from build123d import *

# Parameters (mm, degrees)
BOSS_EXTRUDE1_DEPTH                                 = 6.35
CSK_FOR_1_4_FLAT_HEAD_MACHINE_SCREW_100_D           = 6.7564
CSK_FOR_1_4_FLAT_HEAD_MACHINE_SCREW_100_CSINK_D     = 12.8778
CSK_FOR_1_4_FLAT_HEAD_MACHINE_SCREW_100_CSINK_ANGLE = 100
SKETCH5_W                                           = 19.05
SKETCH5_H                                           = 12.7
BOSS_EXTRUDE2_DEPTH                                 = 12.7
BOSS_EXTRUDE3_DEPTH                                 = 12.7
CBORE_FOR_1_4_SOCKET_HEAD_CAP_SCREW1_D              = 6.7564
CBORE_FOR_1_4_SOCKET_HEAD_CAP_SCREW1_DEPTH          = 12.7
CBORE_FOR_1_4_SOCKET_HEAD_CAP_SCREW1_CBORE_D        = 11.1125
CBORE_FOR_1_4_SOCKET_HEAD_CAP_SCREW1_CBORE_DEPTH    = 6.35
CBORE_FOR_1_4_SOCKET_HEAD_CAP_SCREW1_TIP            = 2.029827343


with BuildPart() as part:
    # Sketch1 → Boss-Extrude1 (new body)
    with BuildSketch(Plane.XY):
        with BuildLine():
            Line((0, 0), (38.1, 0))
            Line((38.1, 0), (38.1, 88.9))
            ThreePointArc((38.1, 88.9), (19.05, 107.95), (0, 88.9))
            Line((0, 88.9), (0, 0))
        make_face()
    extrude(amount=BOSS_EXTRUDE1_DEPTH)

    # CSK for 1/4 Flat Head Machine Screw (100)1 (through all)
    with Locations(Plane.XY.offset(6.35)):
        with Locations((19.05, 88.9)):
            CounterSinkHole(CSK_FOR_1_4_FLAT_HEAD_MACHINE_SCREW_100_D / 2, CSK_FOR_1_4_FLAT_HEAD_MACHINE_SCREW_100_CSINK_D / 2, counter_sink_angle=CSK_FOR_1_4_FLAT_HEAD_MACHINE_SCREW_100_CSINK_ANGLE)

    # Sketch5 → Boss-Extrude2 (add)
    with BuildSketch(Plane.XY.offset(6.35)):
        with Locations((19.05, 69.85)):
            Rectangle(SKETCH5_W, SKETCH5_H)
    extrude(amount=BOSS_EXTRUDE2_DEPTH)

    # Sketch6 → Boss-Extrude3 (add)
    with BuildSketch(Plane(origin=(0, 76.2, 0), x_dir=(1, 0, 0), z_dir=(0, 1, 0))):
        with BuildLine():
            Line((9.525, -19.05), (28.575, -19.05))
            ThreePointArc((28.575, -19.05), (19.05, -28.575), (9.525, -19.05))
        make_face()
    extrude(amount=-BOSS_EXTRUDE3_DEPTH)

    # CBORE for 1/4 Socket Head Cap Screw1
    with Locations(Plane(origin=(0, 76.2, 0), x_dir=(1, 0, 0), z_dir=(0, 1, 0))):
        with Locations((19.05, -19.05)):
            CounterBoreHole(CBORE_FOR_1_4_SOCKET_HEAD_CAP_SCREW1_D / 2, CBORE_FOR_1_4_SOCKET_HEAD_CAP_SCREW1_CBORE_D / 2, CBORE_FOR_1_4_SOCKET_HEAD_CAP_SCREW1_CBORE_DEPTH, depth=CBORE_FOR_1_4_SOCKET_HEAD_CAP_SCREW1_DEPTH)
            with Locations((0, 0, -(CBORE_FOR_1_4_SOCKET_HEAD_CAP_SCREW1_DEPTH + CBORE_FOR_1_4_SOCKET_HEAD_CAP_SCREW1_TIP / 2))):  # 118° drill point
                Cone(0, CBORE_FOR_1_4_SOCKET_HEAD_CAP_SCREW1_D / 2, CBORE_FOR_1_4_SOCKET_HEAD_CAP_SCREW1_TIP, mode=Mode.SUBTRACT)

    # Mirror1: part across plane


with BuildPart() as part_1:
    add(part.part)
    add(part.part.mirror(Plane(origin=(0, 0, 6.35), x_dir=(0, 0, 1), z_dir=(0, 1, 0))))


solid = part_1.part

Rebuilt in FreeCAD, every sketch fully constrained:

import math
import FreeCAD as App
import Part
import Sketcher
from FreeCAD import Vector
Q = App.Units.Quantity


def add_polygon(sketch, points):
    """Adds a closed chain of lines whose ends are joined by coincident constraints."""
    first, n = sketch.GeometryCount, len(points)
    for a, b in zip(points, points[1:] + points[:1]):
        sketch.addGeometry(Part.LineSegment(App.Vector(*a, 0), App.Vector(*b, 0)), False)
    for i in range(n):
        sketch.addConstraint(Sketcher.Constraint("Coincident", first + i, 2, first + (i + 1) % n, 1))

doc = App.newDocument("Part")
params = doc.addObject("Spreadsheet::Sheet", "Params")
for row, (alias, value) in enumerate([
    ("sketch1_radius", "0.75 in"),
    ("sketch1_height", "3.5 in"),
    ("pad1_length", "0.25 in"),
    ("sketch2_diameter", "0.266 in"),
    ("hole_diameter", "0.266 in"),
    ("hole_csink_diameter", "0.507 in"),
    ("sketch3_height", "0.5 in"),
    ("sketch3_width", "0.75 in"),
    ("pad2_length", "0.5 in"),
    ("sketch4_radius", "0.375 in"),
    ("pad3_length", "0.5 in"),
    ("sketch5_diameter", "0.266 in"),
    ("hole2_diameter", "0.266 in"),
    ("hole2_depth", "0.5 in"),
    ("hole2_cbore_diameter", "0.4375 in"),
    ("hole2_cbore_depth", "0.25 in"),
], start=1):
    params.set(f"A{row}", alias)
    params.set(f"B{row}", "=" + value)
    params.setAlias(f"B{row}", alias)

body = doc.addObject("PartDesign::Body", "Body")

sketch1 = body.newObject("Sketcher::SketchObject", "Sketch")
sketch1.AttachmentSupport = (doc.getObject("XY_Plane"), [""])
sketch1.MapMode = "FlatFace"
sketch1.addGeometry(Part.LineSegment(Vector(0, 0, 0), Vector(38, 0, 0)), False)
sketch1.addGeometry(Part.LineSegment(Vector(38, 0, 0), Vector(38, 89, 0)), False)
sketch1.addGeometry(Part.ArcOfCircle(Part.Circle(Vector(19, 89, 0), Vector(0, 0, 1), 19), math.radians(0), math.radians(180)), False)
sketch1.addGeometry(Part.LineSegment(Vector(0, 89, 0), Vector(0, 0, 0)), False)
sketch1.addConstraint(Sketcher.Constraint("Coincident", 0, 2, 1, 1))
sketch1.addConstraint(Sketcher.Constraint("Tangent", 1, 2, 2, 1))
sketch1.addConstraint(Sketcher.Constraint("Tangent", 2, 2, 3, 1))
sketch1.addConstraint(Sketcher.Constraint("Coincident", 3, 2, 0, 1))
sketch1.addConstraint(Sketcher.Constraint("Horizontal", 0))
sketch1.addConstraint(Sketcher.Constraint("Vertical", 1))
sketch1.addConstraint(Sketcher.Constraint("Vertical", 3))
sketch1.addConstraint(Sketcher.Constraint("Coincident", 3, 2, -1, 1))
sketch1.addConstraint(Sketcher.Constraint("Radius", 2, Q("0.75 in")))
sketch1.addConstraint(Sketcher.Constraint("DistanceY", 1, 1, 1, 2, Q("3.5 in")))
sketch1.setExpression("Constraints[8]", "Params.sketch1_radius")
sketch1.setExpression("Constraints[9]", "Params.sketch1_height")
pad1 = body.newObject("PartDesign::Pad", "Pad")
pad1.Profile = sketch1
pad1.setExpression("Length", "Params.pad1_length")

sketch2 = body.newObject("Sketcher::SketchObject", "Sketch001")
sketch2.AttachmentSupport = (doc.getObject("XY_Plane"), [""])
sketch2.MapMode = "FlatFace"
sketch2.AttachmentOffset = App.Placement(Vector(0, 0, 0.25 * 25.4), App.Rotation())
sketch2.addGeometry(Part.Circle(Vector(19.1, 88.9, 0), Vector(0, 0, 1), 3.4), False)
sketch2.addConstraint(Sketcher.Constraint("Diameter", 0, Q("0.266 in")))
sketch2.addConstraint(Sketcher.Constraint("DistanceY", -1, 1, 0, 3, Q("3.5 in")))
sketch2.addConstraint(Sketcher.Constraint("DistanceX", -1, 1, 0, 3, Q("0.75 in")))
sketch2.setExpression("Constraints[0]", "Params.sketch2_diameter")
doc.recompute()
hole = body.newObject("PartDesign::Hole", "Hole")
hole.Profile = sketch2
hole.ThreadType = "None"
hole.setExpression("Diameter", "Params.hole_diameter")
hole.DepthType = "ThroughAll"
hole.HoleCutType = "Countersink"
hole.setExpression("HoleCutDiameter", "Params.hole_csink_diameter")
hole.HoleCutCountersinkAngle = 100

sketch3 = body.newObject("Sketcher::SketchObject", "Sketch002")
sketch3.AttachmentSupport = (doc.getObject("XY_Plane"), [""])
sketch3.MapMode = "FlatFace"
sketch3.AttachmentOffset = App.Placement(Vector(0, 0, 0.25 * 25.4), App.Rotation())
add_polygon(sketch3, [(10, 76), (10, 64), (29, 64), (29, 76)])
sketch3.addConstraint(Sketcher.Constraint("Vertical", 0))
sketch3.addConstraint(Sketcher.Constraint("Horizontal", 1))
sketch3.addConstraint(Sketcher.Constraint("Vertical", 2))
sketch3.addConstraint(Sketcher.Constraint("Horizontal", 3))
sketch3.addConstraint(Sketcher.Constraint("DistanceY", 0, 2, 0, 1, Q("0.5 in")))
sketch3.addConstraint(Sketcher.Constraint("DistanceY", -1, 1, 2, 2, Q("3 in")))
sketch3.addConstraint(Sketcher.Constraint("DistanceX", 1, 1, 1, 2, Q("0.75 in")))
sketch3.addConstraint(Sketcher.Constraint("DistanceX", -1, 1, 0, 2, Q("0.375 in")))
sketch3.setExpression("Constraints[8]", "Params.sketch3_height")
sketch3.setExpression("Constraints[10]", "Params.sketch3_width")
pad2 = body.newObject("PartDesign::Pad", "Pad001")
pad2.Profile = sketch3
pad2.setExpression("Length", "Params.pad2_length")

sketch4 = body.newObject("Sketcher::SketchObject", "Sketch003")
sketch4.AttachmentSupport = (doc.getObject("XZ_Plane"), [""])
sketch4.MapMode = "FlatFace"
sketch4.AttachmentOffset = App.Placement(Vector(0, 0, -3 * 25.4), App.Rotation())
sketch4.addGeometry(Part.LineSegment(Vector(29, 19, 0), Vector(10, 19, 0)), False)
sketch4.addGeometry(Part.ArcOfCircle(Part.Circle(Vector(19, 19, 0), Vector(0, 0, 1), 10), math.radians(0), math.radians(180)), False)
sketch4.addConstraint(Sketcher.Constraint("Coincident", 0, 1, 1, 1))
sketch4.addConstraint(Sketcher.Constraint("Coincident", 1, 2, 0, 2))
sketch4.addConstraint(Sketcher.Constraint("Horizontal", 0))
sketch4.addConstraint(Sketcher.Constraint("Horizontal", 1, 3, 0, 1))
sketch4.addConstraint(Sketcher.Constraint("Radius", 1, Q("0.375 in")))
sketch4.addConstraint(Sketcher.Constraint("DistanceX", -1, 1, 1, 3, Q("0.75 in")))
sketch4.addConstraint(Sketcher.Constraint("DistanceY", -1, 1, 1, 3, Q("0.75 in")))
sketch4.setExpression("Constraints[4]", "Params.sketch4_radius")
pad3 = body.newObject("PartDesign::Pad", "Pad002")
pad3.Profile = sketch4
pad3.setExpression("Length", "Params.pad3_length")

sketch5 = body.newObject("Sketcher::SketchObject", "Sketch004")
sketch5.AttachmentSupport = (doc.getObject("XZ_Plane"), [""])
sketch5.MapMode = "FlatFace"
sketch5.AttachmentOffset = App.Placement(Vector(0, 0, -3 * 25.4), App.Rotation())
sketch5.addGeometry(Part.Circle(Vector(19.1, 19.1, 0), Vector(0, 0, 1), 3.4), False)
sketch5.addConstraint(Sketcher.Constraint("Diameter", 0, Q("0.266 in")))
sketch5.addConstraint(Sketcher.Constraint("DistanceX", -1, 1, 0, 3, Q("0.75 in")))
sketch5.addConstraint(Sketcher.Constraint("DistanceY", -1, 1, 0, 3, Q("0.75 in")))
sketch5.setExpression("Constraints[0]", "Params.sketch5_diameter")
doc.recompute()
hole2 = body.newObject("PartDesign::Hole", "Hole001")
hole2.Profile = sketch5
hole2.ThreadType = "None"
hole2.setExpression("Diameter", "Params.hole2_diameter")
hole2.DepthType = "Dimension"
hole2.setExpression("Depth", "Params.hole2_depth")
hole2.DrillPoint = "Angled"
hole2.DrillPointAngle = 118
hole2.HoleCutType = "Counterbore"
hole2.setExpression("HoleCutDiameter", "Params.hole2_cbore_diameter")
hole2.setExpression("HoleCutDepth", "Params.hole2_cbore_depth")
hole2.Reversed = True
body2 = doc.addObject("PartDesign::Body", "Body001")
doc.recompute()

body2.BaseFeature = body
doc.recompute()

mirroring = doc.addObject("Part::Mirroring", "Mirroring")
mirroring.Source = body
mirroring.Base = Vector(0, 0, 6.35)
mirroring.Normal = Vector(0, 1, 0)
body3 = doc.addObject("PartDesign::Body", "Body002")
body3.BaseFeature = mirroring
boolean = body2.newObject("PartDesign::Boolean", "Boolean")
boolean.Type = "Fuse"
boolean.addObjects([body3])
doc.recompute()
mirroring.Visibility = False

doc.recompute()
